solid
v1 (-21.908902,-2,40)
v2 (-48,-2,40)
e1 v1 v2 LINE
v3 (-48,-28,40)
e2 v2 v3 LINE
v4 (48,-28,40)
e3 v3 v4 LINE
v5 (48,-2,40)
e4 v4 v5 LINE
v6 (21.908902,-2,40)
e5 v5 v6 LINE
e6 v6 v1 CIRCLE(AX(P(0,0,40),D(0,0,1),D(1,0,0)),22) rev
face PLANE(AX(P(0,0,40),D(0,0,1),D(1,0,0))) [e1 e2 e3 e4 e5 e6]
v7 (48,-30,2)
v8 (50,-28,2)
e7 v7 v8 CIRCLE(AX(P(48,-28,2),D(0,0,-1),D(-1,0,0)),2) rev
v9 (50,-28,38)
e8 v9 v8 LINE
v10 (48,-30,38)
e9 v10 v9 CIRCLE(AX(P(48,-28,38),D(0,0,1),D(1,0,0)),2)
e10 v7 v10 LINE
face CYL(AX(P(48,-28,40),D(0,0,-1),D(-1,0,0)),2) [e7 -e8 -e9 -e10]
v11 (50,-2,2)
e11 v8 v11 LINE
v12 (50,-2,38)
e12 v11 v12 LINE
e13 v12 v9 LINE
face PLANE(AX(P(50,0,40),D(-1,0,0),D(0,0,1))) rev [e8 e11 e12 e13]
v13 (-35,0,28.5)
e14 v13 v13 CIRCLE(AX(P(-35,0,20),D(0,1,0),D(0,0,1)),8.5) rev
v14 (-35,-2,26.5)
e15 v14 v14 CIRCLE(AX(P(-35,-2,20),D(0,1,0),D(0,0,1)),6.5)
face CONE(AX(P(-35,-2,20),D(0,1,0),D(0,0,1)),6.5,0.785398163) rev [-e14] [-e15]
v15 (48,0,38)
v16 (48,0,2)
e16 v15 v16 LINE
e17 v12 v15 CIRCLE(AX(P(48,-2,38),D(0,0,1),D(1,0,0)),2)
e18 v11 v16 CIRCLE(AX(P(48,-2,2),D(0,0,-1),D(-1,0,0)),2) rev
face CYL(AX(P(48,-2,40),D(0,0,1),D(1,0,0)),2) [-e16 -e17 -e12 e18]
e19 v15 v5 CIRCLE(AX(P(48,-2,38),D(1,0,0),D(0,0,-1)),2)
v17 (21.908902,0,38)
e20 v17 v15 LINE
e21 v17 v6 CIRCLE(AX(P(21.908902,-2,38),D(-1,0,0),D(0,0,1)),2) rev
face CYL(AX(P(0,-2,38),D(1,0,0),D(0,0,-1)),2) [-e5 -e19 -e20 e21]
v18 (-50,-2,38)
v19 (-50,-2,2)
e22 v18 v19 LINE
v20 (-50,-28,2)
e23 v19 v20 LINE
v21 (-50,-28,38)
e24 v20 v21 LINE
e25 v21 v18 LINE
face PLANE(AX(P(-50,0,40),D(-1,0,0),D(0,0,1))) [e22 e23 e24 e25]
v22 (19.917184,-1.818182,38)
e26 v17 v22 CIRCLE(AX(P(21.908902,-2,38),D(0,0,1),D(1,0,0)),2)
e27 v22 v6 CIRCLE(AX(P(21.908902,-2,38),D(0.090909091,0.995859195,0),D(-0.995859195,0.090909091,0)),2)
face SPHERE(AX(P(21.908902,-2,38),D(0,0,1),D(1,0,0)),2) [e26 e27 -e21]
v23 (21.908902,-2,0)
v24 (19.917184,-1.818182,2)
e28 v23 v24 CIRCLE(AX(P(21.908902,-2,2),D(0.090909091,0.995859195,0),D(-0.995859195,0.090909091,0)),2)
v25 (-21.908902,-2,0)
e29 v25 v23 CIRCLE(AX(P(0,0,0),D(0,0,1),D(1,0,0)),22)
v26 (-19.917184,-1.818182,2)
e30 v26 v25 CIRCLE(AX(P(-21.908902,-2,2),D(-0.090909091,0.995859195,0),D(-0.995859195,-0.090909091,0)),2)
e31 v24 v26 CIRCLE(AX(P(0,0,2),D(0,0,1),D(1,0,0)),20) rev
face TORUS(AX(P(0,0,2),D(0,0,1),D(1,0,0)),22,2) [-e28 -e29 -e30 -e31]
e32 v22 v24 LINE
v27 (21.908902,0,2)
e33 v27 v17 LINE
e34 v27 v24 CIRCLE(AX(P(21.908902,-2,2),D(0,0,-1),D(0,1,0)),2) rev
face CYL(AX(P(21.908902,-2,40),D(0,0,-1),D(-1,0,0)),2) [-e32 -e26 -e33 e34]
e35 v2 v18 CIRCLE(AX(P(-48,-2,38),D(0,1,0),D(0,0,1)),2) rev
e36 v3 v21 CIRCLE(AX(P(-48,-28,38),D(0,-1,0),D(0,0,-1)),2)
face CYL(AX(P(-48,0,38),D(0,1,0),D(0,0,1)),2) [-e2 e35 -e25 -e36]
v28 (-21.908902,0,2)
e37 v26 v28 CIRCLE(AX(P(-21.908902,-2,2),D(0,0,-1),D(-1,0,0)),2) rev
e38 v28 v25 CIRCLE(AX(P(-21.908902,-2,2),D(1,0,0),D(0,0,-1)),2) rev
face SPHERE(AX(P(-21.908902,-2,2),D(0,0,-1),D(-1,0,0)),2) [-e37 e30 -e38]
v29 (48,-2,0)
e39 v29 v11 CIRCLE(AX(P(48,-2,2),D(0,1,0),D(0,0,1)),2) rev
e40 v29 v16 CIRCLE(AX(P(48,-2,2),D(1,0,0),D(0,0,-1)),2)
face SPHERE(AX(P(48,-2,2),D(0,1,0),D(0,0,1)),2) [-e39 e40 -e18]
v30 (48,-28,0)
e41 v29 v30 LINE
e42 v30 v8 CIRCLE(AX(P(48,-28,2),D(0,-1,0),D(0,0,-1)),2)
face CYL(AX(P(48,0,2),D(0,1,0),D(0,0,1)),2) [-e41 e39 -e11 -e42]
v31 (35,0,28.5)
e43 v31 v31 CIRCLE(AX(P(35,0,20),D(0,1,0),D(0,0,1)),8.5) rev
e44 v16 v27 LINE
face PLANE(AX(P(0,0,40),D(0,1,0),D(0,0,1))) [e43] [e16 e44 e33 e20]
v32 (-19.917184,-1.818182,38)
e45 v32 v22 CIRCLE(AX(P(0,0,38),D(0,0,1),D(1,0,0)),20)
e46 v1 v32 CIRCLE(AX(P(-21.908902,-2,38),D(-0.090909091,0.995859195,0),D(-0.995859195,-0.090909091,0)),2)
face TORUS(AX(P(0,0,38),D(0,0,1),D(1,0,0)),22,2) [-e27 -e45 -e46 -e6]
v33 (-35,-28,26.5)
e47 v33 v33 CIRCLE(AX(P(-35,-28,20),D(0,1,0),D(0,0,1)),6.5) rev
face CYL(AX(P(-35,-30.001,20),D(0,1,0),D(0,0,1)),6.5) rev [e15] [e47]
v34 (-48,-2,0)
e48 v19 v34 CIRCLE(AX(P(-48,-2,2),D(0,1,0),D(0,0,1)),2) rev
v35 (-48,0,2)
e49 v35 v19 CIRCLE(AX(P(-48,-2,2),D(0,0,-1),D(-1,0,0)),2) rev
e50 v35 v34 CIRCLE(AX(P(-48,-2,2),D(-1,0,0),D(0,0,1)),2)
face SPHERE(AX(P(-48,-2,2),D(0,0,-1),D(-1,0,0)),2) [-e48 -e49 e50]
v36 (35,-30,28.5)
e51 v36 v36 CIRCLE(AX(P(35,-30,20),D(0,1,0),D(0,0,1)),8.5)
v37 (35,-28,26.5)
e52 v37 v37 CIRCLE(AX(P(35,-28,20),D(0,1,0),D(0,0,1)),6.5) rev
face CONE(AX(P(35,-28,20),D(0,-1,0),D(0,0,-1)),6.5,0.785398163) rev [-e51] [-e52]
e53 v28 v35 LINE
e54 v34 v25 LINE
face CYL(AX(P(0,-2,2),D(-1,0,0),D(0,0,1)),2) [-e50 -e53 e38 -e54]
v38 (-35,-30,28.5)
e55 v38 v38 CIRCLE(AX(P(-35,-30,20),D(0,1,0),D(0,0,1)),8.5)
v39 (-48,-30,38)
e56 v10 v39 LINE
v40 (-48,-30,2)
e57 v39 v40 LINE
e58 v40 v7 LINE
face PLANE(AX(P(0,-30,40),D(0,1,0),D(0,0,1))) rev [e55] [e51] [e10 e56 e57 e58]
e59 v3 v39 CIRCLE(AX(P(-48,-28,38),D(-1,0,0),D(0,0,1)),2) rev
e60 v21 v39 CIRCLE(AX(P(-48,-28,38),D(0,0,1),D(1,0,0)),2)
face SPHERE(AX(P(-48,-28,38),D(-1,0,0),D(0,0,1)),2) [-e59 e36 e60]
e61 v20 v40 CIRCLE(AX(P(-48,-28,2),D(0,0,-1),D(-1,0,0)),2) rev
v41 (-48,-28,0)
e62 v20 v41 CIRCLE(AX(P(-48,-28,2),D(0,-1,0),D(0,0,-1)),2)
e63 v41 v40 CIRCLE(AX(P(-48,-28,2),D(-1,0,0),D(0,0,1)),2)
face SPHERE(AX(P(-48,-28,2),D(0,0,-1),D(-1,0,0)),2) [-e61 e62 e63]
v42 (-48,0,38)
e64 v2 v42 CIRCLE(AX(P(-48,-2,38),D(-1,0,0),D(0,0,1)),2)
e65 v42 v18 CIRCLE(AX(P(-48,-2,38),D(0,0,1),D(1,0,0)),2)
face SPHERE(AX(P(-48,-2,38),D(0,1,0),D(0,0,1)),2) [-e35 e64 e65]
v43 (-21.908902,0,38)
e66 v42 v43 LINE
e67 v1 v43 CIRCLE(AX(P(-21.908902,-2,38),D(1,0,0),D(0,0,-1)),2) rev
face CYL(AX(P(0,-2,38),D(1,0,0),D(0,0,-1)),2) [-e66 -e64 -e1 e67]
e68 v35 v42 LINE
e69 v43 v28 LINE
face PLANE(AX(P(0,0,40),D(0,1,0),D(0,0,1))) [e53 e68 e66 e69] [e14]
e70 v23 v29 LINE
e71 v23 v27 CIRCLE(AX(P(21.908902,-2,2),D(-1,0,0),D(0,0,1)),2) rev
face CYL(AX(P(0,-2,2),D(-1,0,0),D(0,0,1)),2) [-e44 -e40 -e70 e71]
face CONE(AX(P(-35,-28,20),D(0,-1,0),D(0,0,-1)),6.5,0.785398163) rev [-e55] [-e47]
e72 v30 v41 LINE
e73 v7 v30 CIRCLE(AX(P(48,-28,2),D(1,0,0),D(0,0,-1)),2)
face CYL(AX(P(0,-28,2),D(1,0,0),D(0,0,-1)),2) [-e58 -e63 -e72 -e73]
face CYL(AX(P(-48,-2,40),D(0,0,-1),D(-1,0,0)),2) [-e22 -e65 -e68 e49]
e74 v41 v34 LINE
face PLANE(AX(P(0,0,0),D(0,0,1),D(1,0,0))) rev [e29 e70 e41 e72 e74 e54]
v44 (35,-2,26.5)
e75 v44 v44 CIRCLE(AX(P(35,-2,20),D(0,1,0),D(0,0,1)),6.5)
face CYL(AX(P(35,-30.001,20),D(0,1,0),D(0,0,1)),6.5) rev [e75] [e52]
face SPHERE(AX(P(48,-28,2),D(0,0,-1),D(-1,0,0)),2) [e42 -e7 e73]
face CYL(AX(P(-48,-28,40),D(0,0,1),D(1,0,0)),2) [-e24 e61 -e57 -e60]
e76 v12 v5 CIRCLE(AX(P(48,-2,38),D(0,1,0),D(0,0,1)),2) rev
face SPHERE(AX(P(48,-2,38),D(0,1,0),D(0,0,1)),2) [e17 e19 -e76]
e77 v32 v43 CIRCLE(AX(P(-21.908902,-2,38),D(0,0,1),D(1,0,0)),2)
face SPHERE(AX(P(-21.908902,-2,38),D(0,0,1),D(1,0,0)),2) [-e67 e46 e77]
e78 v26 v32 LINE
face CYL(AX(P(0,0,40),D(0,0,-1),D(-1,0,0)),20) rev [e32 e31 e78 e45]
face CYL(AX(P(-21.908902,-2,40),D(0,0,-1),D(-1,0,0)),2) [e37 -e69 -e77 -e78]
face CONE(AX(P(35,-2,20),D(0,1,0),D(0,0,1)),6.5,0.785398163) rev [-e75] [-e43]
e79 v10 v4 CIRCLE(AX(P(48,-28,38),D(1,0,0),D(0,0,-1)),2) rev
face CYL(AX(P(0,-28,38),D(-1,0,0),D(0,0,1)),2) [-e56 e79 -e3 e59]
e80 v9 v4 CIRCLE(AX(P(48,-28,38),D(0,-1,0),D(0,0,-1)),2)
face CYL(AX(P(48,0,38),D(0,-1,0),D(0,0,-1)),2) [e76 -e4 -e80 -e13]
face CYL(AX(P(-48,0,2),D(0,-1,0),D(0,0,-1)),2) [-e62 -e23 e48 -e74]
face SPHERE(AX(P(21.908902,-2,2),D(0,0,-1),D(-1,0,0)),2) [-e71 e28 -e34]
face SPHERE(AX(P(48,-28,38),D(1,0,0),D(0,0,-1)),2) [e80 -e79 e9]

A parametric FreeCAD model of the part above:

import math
import FreeCAD as App
import Part
import Sketcher

V = App.Vector


def edges_at(feature, points):
    """Names of the edges that pass closest to the given points."""
    edges = feature.Shape.Edges
    near = lambda p: min(range(len(edges)), key=lambda i: edges[i].distToShape(Part.Vertex(*p))[0])
    return sorted({f"Edge{near(p) + 1}" for p in points})

doc = App.newDocument("Part")
body = doc.addObject("PartDesign::Body", "Body")

sketch1 = body.newObject("Sketcher::SketchObject", "Sketch")
sketch1.AttachmentSupport = (doc.getObject("XY_Plane"), [""])
sketch1.MapMode = "FlatFace"
sketch1.addGeometry([
    Part.LineSegment(V(50, 0, 0), V(20, 0, 0)),
    Part.ArcOfCircle(Part.Circle(V(0, 0, 0), V(0, 0, 1), 20), math.radians(180), math.radians(360)),
    Part.LineSegment(V(-20, 0, 0), V(-50, 0, 0)),
    Part.LineSegment(V(-50, 0, 0), V(-50, -30, 0)),
    Part.LineSegment(V(-50, -30, 0), V(50, -30, 0)),
    Part.LineSegment(V(50, -30, 0), V(50, 0, 0)),
], False)
sketch1.addConstraint([
    Sketcher.Constraint("Coincident", 0, 2, 1, 2),
    Sketcher.Constraint("Coincident", 1, 1, 2, 1),
    Sketcher.Constraint("Coincident", 2, 2, 3, 1),
    Sketcher.Constraint("Coincident", 3, 2, 4, 1),
    Sketcher.Constraint("Coincident", 4, 2, 5, 1),
    Sketcher.Constraint("Coincident", 5, 2, 0, 1),
    Sketcher.Constraint("Horizontal", 0),
    Sketcher.Constraint("Horizontal", 2),
    Sketcher.Constraint("Vertical", 3),
    Sketcher.Constraint("Horizontal", 4),
    Sketcher.Constraint("Vertical", 5),
    Sketcher.Constraint("Coincident", 1, 3, -1, 1),
    Sketcher.Constraint("Symmetric", 2, 2, 5, 2, -1, 1),
    Sketcher.Constraint("PointOnObject", 0, 2, -1),
    Sketcher.Constraint("Equal", 2, 3),
    Sketcher.Constraint("Radius", 1, 20.0),
    Sketcher.Constraint("DistanceX", 0, 2, 0, 1, 30.0),
])
pad1 = body.newObject("PartDesign::Pad", "Pad")
pad1.Profile = sketch1
pad1.Length = 40

sketch2 = body.newObject("Sketcher::SketchObject", "Sketch001")
sketch2.AttachmentSupport = (doc.getObject("XZ_Plane"), [""])
sketch2.MapMode = "FlatFace"
sketch2.addGeometry(Part.Circle(V(-35, 20, 0), V(0, 0, 1), 6.5), False)
sketch2.addConstraint([
    Sketcher.Constraint("Diameter", 0, 13.0),
    Sketcher.Constraint("DistanceX", 0, 3, -1, 1, 35.0),
    Sketcher.Constraint("DistanceY", -1, 1, 0, 3, 20.0),
])
pocket1 = body.newObject("PartDesign::Pocket", "Pocket")
pocket1.Profile = sketch2
pocket1.Type = "UpToFirst"
pocket1.Reversed = True

sketch3 = body.newObject("Sketcher::SketchObject", "Sketch002")
sketch3.AttachmentSupport = (doc.getObject("XZ_Plane"), [""])
sketch3.MapMode = "FlatFace"
sketch3.addGeometry(Part.Circle(V(35, 20, 0), V(0, 0, 1), 6.5), False)
sketch3.addConstraint([
    Sketcher.Constraint("Diameter", 0, 13.0),
    Sketcher.Constraint("DistanceX", -1, 1, 0, 3, 35.0),
    Sketcher.Constraint("DistanceY", -1, 1, 0, 3, 20.0),
])
pocket2 = body.newObject("PartDesign::Pocket", "Pocket001")
pocket2.Profile = sketch3
pocket2.Type = "UpToFirst"
pocket2.Reversed = True
doc.recompute()

chamfer = body.newObject("PartDesign::Chamfer", "Chamfer")
chamfer.Base = (pocket2, edges_at(pocket2, [
    (-35, 0, 13.5),
    (-35, -30, 13.5),
    (35, 0, 13.5),
    (35, -30, 13.5),
]))
chamfer.Size = 2
doc.recompute()

fillet = body.newObject("PartDesign::Fillet", "Fillet")
fillet.Base = (chamfer, edges_at(chamfer, [
    (0, -20, 0),
    (-35, 0, 40),
    (20, 0, 20),
    (50, 0, 20),
    (50, -30, 20),
    (-50, -30, 20),
    (-50, 0, 20),
    (-20, 0, 20),
    (-50, -15, 40),
    (0, -30, 40),
    (50, -15, 40),
    (35, 0, 40),
    (0, -20, 40),
    (35, 0, 0),
    (50, -15, 0),
    (0, -30, 0),
    (-50, -15, 0),
    (-35, 0, 0),
]))
fillet.Radius = 2

doc.recompute()
